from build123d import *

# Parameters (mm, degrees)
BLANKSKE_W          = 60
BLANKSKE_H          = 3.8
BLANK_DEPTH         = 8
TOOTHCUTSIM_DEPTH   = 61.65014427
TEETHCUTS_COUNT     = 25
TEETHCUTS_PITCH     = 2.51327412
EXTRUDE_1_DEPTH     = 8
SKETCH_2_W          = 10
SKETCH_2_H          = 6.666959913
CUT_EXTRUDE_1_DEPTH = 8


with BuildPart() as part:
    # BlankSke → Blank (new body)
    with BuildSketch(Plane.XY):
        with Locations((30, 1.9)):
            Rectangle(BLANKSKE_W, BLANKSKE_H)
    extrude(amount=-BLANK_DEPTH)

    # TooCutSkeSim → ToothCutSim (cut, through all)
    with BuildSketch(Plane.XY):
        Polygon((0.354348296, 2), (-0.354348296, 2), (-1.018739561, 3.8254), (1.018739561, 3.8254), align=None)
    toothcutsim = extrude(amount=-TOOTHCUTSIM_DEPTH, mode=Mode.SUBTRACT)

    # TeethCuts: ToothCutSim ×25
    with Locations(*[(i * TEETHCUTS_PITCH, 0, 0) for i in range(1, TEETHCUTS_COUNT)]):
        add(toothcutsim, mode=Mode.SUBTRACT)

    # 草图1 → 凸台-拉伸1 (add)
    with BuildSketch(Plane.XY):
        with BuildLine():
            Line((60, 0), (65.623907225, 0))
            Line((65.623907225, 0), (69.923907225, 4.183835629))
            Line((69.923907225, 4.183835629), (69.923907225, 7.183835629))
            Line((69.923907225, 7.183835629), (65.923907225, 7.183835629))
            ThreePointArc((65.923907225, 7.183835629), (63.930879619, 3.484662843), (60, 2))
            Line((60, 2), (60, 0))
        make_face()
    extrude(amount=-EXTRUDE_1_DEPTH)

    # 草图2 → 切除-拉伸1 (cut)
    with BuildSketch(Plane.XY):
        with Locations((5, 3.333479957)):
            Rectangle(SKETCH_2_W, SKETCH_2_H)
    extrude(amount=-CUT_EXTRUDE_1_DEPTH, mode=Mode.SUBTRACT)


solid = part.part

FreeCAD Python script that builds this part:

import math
import FreeCAD as App
import Part
import Sketcher

V = App.Vector
Q = App.Units.Quantity

doc = App.newDocument("Part")
params = doc.addObject("Spreadsheet::Sheet", "Params")
for row, (alias, value) in enumerate([
    ("sketch1_width", "60 mm"),
    ("sketch1_height", "3.8 mm"),
    ("pad1_length", "8 mm"),
    ("linearpattern_pitch", "2.513274 mm"),
    ("sketch3_radius", "6 mm"),
    ("sketch3_width", "4 mm"),
    ("sketch3_height", "3 mm"),
    ("sketch3_height2", "2 mm"),
    ("pad2_length", "8 mm"),
    ("sketch4_width", "10 mm"),
    ("pocket2_length", "8 mm"),
], start=1):
    params.set(f"A{row}", alias)
    params.set(f"B{row}", "=" + value)
    params.setAlias(f"B{row}", alias)

body = doc.addObject("PartDesign::Body", "Body")

# Sketch on XY plane
sketch1 = body.newObject("Sketcher::SketchObject", "Sketch")
sketch1.AttachmentSupport = (doc.getObject("XY_Plane"), [""])
sketch1.MapMode = "FlatFace"
sketch1.addGeometry(Part.LineSegment(V(0, 3.8, 0), V(0, 0, 0)), False)
sketch1.addGeometry(Part.LineSegment(V(0, 0, 0), V(60, 0, 0)), False)
sketch1.addGeometry(Part.LineSegment(V(60, 0, 0), V(60, 3.8, 0)), False)
sketch1.addGeometry(Part.LineSegment(V(60, 3.8, 0), V(0, 3.8, 0)), False)
sketch1.addConstraint(Sketcher.Constraint("Coincident", 0, 2, 1, 1))
sketch1.addConstraint(Sketcher.Constraint("Coincident", 1, 2, 2, 1))
sketch1.addConstraint(Sketcher.Constraint("Coincident", 2, 2, 3, 1))
sketch1.addConstraint(Sketcher.Constraint("Coincident", 3, 2, 0, 1))
sketch1.addConstraint(Sketcher.Constraint("Vertical", 0))
sketch1.addConstraint(Sketcher.Constraint("Horizontal", 1))
sketch1.addConstraint(Sketcher.Constraint("Vertical", 2))
sketch1.addConstraint(Sketcher.Constraint("Horizontal", 3))
sketch1.addConstraint(Sketcher.Constraint("Coincident", 0, 2, -1, 1))
sketch1.addConstraint(Sketcher.Constraint("DistanceX", 1, 1, 1, 2, Q("60 mm")))
sketch1.addConstraint(Sketcher.Constraint("DistanceY", 0, 2, 0, 1, Q("3.8 mm")))
sketch1.setExpression("Constraints[9]", "Params.sketch1_width")
sketch1.setExpression("Constraints[10]", "Params.sketch1_height")
pad1 = body.newObject("PartDesign::Pad", "Pad")
pad1.Profile = sketch1
pad1.setExpression("Length", "Params.pad1_length")
pad1.Reversed = True

# Sketch on XY plane
sketch2 = body.newObject("Sketcher::SketchObject", "Sketch001")
sketch2.AttachmentSupport = (doc.getObject("XY_Plane"), [""])
sketch2.MapMode = "FlatFace"
sketch2.addGeometry(Part.LineSegment(V(-0.354348, 2, 0), V(0.354348, 2, 0)), False)
sketch2.addGeometry(Part.LineSegment(V(0.354348, 2, 0), V(1.01874, 3.8254, 0)), False)
sketch2.addGeometry(Part.LineSegment(V(1.01874, 3.8254, 0), V(-1.01874, 3.8254, 0)), False)
sketch2.addGeometry(Part.LineSegment(V(-1.01874, 3.8254, 0), V(-0.354348, 2, 0)), False)
sketch2.addConstraint(Sketcher.Constraint("Coincident", 0, 2, 1, 1))
sketch2.addConstraint(Sketcher.Constraint("Coincident", 1, 2, 2, 1))
sketch2.addConstraint(Sketcher.Constraint("Coincident", 2, 2, 3, 1))
sketch2.addConstraint(Sketcher.Constraint("Coincident", 3, 2, 0, 1))
sketch2.addConstraint(Sketcher.Constraint("Horizontal", 0))
sketch2.addConstraint(Sketcher.Constraint("Horizontal", 2))
sketch2.addConstraint(Sketcher.Constraint("Equal", 1, 3))
sketch2.addConstraint(Sketcher.Constraint("Angle", 1, Q("70 deg")))
sketch2.addConstraint(Sketcher.Constraint("DistanceY", -1, 1, 0, 2, Q("2 mm")))
sketch2.addConstraint(Sketcher.Constraint("DistanceX", 2, 2, 2, 1, Q("2.037479 mm")))
sketch2.addConstraint(Sketcher.Constraint("DistanceY", -1, 1, 1, 2, Q("3.8254 mm")))
sketch2.addConstraint(Sketcher.Constraint("DistanceX", -1, 1, 0, 2, Q("0.354348 mm")))
pocket1 = body.newObject("PartDesign::Pocket", "Pocket")
pocket1.Profile = sketch2
pocket1.Type = "ThroughAll"
doc.recompute()

linearpattern = body.newObject("PartDesign::LinearPattern", "LinearPattern")
linearpattern.Originals = [pocket1]
linearpattern.Direction = (doc.getObject("X_Axis"), [""])
linearpattern.Mode = "offset"
linearpattern.setExpression("Offset", "Params.linearpattern_pitch")
linearpattern.Occurrences = 25
body.Tip = linearpattern

# Sketch on XY plane
sketch3 = body.newObject("Sketcher::SketchObject", "Sketch002")
sketch3.AttachmentSupport = (doc.getObject("XY_Plane"), [""])
sketch3.MapMode = "FlatFace"
sketch3.addGeometry(Part.LineSegment(V(60, 0, 0), V(65.623907, 0, 0)), False)
sketch3.addGeometry(Part.LineSegment(V(65.623907, 0, 0), V(69.923907, 4.183836, 0)), False)
sketch3.addGeometry(Part.LineSegment(V(69.923907, 4.183836, 0), V(69.923907, 7.183836, 0)), False)
sketch3.addGeometry(Part.LineSegment(V(69.923907, 7.183836, 0), V(65.923907, 7.183836, 0)), False)
sketch3.addGeometry(Part.ArcOfCircle(Part.Circle(V(59.979672, 7.999966, 0), V(0, 0, 1), 6), math.radians(-89.805882), math.radians(-7.817701)), False)
sketch3.addGeometry(Part.LineSegment(V(60, 2, 0), V(60, 0, 0)), False)
sketch3.addConstraint(Sketcher.Constraint("Coincident", 0, 2, 1, 1))
sketch3.addConstraint(Sketcher.Constraint("Coincident", 1, 2, 2, 1))
sketch3.addConstraint(Sketcher.Constraint("Coincident", 2, 2, 3, 1))
sketch3.addConstraint(Sketcher.Constraint("Coincident", 3, 2, 4, 2))
sketch3.addConstraint(Sketcher.Constraint("Coincident", 4, 1, 5, 1))
sketch3.addConstraint(Sketcher.Constraint("Coincident", 5, 2, 0, 1))
sketch3.addConstraint(Sketcher.Constraint("Horizontal", 0))
sketch3.addConstraint(Sketcher.Constraint("Vertical", 2))
sketch3.addConstraint(Sketcher.Constraint("Horizontal", 3))
sketch3.addConstraint(Sketcher.Constraint("Vertical", 5))
sketch3.addConstraint(Sketcher.Constraint("PointOnObject", 0, 2, -1))
sketch3.addConstraint(Sketcher.Constraint("Radius", 4, Q("6 mm")))
sketch3.addConstraint(Sketcher.Constraint("DistanceX", 3, 2, 3, 1, Q("4 mm")))
sketch3.addConstraint(Sketcher.Constraint("DistanceY", 2, 1, 2, 2, Q("3 mm")))
sketch3.addConstraint(Sketcher.Constraint("DistanceY", 5, 2, 5, 1, Q("2 mm")))
sketch3.addConstraint(Sketcher.Constraint("DistanceX", -1, 1, 4, 1, Q("60 mm")))
sketch3.addConstraint(Sketcher.Constraint("DistanceX", 0, 2, 1, 2, Q("4.3 mm")))
sketch3.addConstraint(Sketcher.Constraint("Distance", 1, Q("5.99954 mm")))
sketch3.addConstraint(Sketcher.Constraint("DistanceX", 0, 1, 0, 2, Q("5.623907 mm")))
sketch3.setExpression("Constraints[11]", "Params.sketch3_radius")
sketch3.setExpression("Constraints[12]", "Params.sketch3_width")
sketch3.setExpression("Constraints[13]", "Params.sketch3_height")
sketch3.setExpression("Constraints[14]", "Params.sketch3_height2")
pad2 = body.newObject("PartDesign::Pad", "Pad001")
pad2.Profile = sketch3
pad2.setExpression("Length", "Params.pad2_length")
pad2.Reversed = True

# Sketch on XY plane
sketch4 = body.newObject("Sketcher::SketchObject", "Sketch003")
sketch4.AttachmentSupport = (doc.getObject("XY_Plane"), [""])
sketch4.MapMode = "FlatFace"
sketch4.addGeometry(Part.LineSegment(V(0, 6.66696, 0), V(0, 0, 0)), False)
sketch4.addGeometry(Part.LineSegment(V(0, 0, 0), V(10, 0, 0)), False)
sketch4.addGeometry(Part.LineSegment(V(10, 0, 0), V(10, 6.66696, 0)), False)
sketch4.addGeometry(Part.LineSegment(V(10, 6.66696, 0), V(0, 6.66696, 0)), False)
sketch4.addConstraint(Sketcher.Constraint("Coincident", 0, 2, 1, 1))
sketch4.addConstraint(Sketcher.Constraint("Coincident", 1, 2, 2, 1))
sketch4.addConstraint(Sketcher.Constraint("Coincident", 2, 2, 3, 1))
sketch4.addConstraint(Sketcher.Constraint("Coincident", 3, 2, 0, 1))
sketch4.addConstraint(Sketcher.Constraint("Vertical", 0))
sketch4.addConstraint(Sketcher.Constraint("Horizontal", 1))
sketch4.addConstraint(Sketcher.Constraint("Vertical", 2))
sketch4.addConstraint(Sketcher.Constraint("Horizontal", 3))
sketch4.addConstraint(Sketcher.Constraint("Coincident", 0, 2, -1, 1))
sketch4.addConstraint(Sketcher.Constraint("DistanceX", 1, 1, 1, 2, Q("10 mm")))
sketch4.addConstraint(Sketcher.Constraint("DistanceY", 0, 2, 0, 1, Q("6.66696 mm")))
sketch4.setExpression("Constraints[9]", "Params.sketch4_width")
pocket2 = body.newObject("PartDesign::Pocket", "Pocket001")
pocket2.Profile = sketch4
pocket2.setExpression("Length", "Params.pocket2_length")

doc.recompute()
